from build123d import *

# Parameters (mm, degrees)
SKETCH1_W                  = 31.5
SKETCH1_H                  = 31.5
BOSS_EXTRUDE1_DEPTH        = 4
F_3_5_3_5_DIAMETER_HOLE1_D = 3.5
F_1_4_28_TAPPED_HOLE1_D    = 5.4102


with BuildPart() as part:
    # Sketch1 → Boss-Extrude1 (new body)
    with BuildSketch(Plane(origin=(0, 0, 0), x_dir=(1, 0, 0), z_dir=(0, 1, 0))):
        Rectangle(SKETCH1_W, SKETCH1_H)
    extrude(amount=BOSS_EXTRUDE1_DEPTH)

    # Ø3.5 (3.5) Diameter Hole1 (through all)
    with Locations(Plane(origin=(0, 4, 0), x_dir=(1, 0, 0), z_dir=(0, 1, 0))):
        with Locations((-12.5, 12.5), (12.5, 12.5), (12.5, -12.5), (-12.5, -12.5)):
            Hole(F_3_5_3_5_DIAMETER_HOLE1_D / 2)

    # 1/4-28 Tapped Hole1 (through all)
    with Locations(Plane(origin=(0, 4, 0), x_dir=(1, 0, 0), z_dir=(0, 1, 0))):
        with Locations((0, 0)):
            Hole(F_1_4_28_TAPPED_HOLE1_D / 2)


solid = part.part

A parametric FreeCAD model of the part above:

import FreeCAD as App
import Part
import Sketcher


def add_polygon(sketch, points):
    """Adds a closed chain of lines whose ends are joined by coincident constraints."""
    first, n = sketch.GeometryCount, len(points)
    for a, b in zip(points, points[1:] + points[:1]):
        sketch.addGeometry(Part.LineSegment(App.Vector(*a, 0), App.Vector(*b, 0)), False)
    for i in range(n):
        sketch.addConstraint(Sketcher.Constraint("Coincident", first + i, 2, first + (i + 1) % n, 1))

doc = App.newDocument("Part")
body = doc.addObject("PartDesign::Body", "Body")

# Sketch on XZ plane
sketch1 = doc.addObject("Sketcher::SketchObject", "Sketch")
body.addObject(sketch1)
sketch1.AttachmentSupport = (doc.XZ_Plane, [""])
sketch1.MapMode = "FlatFace"
add_polygon(sketch1, [(-16, -16), (-16, 16), (16, 16), (16, -16)])  # lines 0-3
sketch1.addConstraint([
    Sketcher.Constraint("Vertical", 0),
    Sketcher.Constraint("Horizontal", 1),
    Sketcher.Constraint("Vertical", 2),
    Sketcher.Constraint("Horizontal", 3),
    Sketcher.Constraint("Symmetric", 0, 2, 2, 2, -1, 1),
    Sketcher.Constraint("Equal", 3, 0),
    Sketcher.Constraint("DistanceX", 1, 1, 1, 2, 31.5),
])
pad1 = doc.addObject("PartDesign::Pad", "Pad")
body.addObject(pad1)
pad1.Profile = sketch1
pad1.Length = 4
pad1.Reversed = True

# Sketch on XZ plane
sketch2 = doc.addObject("Sketcher::SketchObject", "Sketch001")
body.addObject(sketch2)
sketch2.AttachmentSupport = (doc.XZ_Plane, [""])
sketch2.MapMode = "FlatFace"
sketch2.AttachmentOffset = App.Placement(App.Vector(0, 0, -4), App.Rotation())
sketch2.addGeometry([
    Part.Circle(App.Vector(-12.5, -12.5, 0), App.Vector(0, 0, 1), 1.8),
    Part.Circle(App.Vector(12.5, -12.5, 0), App.Vector(0, 0, 1), 1.8),
    Part.Circle(App.Vector(12.5, 12.5, 0), App.Vector(0, 0, 1), 1.8),
    Part.Circle(App.Vector(-12.5, 12.5, 0), App.Vector(0, 0, 1), 1.8),
], False)
sketch2.addConstraint([
    Sketcher.Constraint("Equal", 0, 1),
    Sketcher.Constraint("Equal", 1, 2),
    Sketcher.Constraint("Equal", 2, 3),
    Sketcher.Constraint("Symmetric", 0, 3, 2, 3, -1, 1),
    Sketcher.Constraint("Symmetric", 1, 3, 3, 3, -1, 1),
    Sketcher.Constraint("Symmetric", 0, 3, 1, 3, -2),
    Sketcher.Constraint("Diameter", 0, 3.5),
    Sketcher.Constraint("DistanceX", 0, 3, 1, 3, 25.0),
    Sketcher.Constraint("DistanceY", 1, 3, 2, 3, 25.0),
])
doc.recompute()
hole = doc.addObject("PartDesign::Hole", "Hole")
body.addObject(hole)
hole.Profile = sketch2
hole.ThreadType = "None"
hole.Diameter = 3.5
hole.DepthType = "ThroughAll"
hole.Reversed = True

# Sketch on XZ plane
sketch3 = doc.addObject("Sketcher::SketchObject", "Sketch002")
body.addObject(sketch3)
sketch3.AttachmentSupport = (doc.XZ_Plane, [""])
sketch3.MapMode = "FlatFace"
sketch3.AttachmentOffset = App.Placement(App.Vector(0, 0, -4), App.Rotation())
sketch3.addGeometry(Part.Circle(App.Vector(0, 0, 0), App.Vector(0, 0, 1), 2.7), False)
sketch3.addConstraint([
    Sketcher.Constraint("Coincident", 0, 3, -1, 1),
    Sketcher.Constraint("Diameter", 0, 5.4102),
])
doc.recompute()
hole2 = doc.addObject("PartDesign::Hole", "Hole001")
body.addObject(hole2)
hole2.Profile = sketch3
hole2.ThreadType = "None"
hole2.Diameter = 5.4102
hole2.DepthType = "ThroughAll"
hole2.Reversed = True

doc.recompute()
